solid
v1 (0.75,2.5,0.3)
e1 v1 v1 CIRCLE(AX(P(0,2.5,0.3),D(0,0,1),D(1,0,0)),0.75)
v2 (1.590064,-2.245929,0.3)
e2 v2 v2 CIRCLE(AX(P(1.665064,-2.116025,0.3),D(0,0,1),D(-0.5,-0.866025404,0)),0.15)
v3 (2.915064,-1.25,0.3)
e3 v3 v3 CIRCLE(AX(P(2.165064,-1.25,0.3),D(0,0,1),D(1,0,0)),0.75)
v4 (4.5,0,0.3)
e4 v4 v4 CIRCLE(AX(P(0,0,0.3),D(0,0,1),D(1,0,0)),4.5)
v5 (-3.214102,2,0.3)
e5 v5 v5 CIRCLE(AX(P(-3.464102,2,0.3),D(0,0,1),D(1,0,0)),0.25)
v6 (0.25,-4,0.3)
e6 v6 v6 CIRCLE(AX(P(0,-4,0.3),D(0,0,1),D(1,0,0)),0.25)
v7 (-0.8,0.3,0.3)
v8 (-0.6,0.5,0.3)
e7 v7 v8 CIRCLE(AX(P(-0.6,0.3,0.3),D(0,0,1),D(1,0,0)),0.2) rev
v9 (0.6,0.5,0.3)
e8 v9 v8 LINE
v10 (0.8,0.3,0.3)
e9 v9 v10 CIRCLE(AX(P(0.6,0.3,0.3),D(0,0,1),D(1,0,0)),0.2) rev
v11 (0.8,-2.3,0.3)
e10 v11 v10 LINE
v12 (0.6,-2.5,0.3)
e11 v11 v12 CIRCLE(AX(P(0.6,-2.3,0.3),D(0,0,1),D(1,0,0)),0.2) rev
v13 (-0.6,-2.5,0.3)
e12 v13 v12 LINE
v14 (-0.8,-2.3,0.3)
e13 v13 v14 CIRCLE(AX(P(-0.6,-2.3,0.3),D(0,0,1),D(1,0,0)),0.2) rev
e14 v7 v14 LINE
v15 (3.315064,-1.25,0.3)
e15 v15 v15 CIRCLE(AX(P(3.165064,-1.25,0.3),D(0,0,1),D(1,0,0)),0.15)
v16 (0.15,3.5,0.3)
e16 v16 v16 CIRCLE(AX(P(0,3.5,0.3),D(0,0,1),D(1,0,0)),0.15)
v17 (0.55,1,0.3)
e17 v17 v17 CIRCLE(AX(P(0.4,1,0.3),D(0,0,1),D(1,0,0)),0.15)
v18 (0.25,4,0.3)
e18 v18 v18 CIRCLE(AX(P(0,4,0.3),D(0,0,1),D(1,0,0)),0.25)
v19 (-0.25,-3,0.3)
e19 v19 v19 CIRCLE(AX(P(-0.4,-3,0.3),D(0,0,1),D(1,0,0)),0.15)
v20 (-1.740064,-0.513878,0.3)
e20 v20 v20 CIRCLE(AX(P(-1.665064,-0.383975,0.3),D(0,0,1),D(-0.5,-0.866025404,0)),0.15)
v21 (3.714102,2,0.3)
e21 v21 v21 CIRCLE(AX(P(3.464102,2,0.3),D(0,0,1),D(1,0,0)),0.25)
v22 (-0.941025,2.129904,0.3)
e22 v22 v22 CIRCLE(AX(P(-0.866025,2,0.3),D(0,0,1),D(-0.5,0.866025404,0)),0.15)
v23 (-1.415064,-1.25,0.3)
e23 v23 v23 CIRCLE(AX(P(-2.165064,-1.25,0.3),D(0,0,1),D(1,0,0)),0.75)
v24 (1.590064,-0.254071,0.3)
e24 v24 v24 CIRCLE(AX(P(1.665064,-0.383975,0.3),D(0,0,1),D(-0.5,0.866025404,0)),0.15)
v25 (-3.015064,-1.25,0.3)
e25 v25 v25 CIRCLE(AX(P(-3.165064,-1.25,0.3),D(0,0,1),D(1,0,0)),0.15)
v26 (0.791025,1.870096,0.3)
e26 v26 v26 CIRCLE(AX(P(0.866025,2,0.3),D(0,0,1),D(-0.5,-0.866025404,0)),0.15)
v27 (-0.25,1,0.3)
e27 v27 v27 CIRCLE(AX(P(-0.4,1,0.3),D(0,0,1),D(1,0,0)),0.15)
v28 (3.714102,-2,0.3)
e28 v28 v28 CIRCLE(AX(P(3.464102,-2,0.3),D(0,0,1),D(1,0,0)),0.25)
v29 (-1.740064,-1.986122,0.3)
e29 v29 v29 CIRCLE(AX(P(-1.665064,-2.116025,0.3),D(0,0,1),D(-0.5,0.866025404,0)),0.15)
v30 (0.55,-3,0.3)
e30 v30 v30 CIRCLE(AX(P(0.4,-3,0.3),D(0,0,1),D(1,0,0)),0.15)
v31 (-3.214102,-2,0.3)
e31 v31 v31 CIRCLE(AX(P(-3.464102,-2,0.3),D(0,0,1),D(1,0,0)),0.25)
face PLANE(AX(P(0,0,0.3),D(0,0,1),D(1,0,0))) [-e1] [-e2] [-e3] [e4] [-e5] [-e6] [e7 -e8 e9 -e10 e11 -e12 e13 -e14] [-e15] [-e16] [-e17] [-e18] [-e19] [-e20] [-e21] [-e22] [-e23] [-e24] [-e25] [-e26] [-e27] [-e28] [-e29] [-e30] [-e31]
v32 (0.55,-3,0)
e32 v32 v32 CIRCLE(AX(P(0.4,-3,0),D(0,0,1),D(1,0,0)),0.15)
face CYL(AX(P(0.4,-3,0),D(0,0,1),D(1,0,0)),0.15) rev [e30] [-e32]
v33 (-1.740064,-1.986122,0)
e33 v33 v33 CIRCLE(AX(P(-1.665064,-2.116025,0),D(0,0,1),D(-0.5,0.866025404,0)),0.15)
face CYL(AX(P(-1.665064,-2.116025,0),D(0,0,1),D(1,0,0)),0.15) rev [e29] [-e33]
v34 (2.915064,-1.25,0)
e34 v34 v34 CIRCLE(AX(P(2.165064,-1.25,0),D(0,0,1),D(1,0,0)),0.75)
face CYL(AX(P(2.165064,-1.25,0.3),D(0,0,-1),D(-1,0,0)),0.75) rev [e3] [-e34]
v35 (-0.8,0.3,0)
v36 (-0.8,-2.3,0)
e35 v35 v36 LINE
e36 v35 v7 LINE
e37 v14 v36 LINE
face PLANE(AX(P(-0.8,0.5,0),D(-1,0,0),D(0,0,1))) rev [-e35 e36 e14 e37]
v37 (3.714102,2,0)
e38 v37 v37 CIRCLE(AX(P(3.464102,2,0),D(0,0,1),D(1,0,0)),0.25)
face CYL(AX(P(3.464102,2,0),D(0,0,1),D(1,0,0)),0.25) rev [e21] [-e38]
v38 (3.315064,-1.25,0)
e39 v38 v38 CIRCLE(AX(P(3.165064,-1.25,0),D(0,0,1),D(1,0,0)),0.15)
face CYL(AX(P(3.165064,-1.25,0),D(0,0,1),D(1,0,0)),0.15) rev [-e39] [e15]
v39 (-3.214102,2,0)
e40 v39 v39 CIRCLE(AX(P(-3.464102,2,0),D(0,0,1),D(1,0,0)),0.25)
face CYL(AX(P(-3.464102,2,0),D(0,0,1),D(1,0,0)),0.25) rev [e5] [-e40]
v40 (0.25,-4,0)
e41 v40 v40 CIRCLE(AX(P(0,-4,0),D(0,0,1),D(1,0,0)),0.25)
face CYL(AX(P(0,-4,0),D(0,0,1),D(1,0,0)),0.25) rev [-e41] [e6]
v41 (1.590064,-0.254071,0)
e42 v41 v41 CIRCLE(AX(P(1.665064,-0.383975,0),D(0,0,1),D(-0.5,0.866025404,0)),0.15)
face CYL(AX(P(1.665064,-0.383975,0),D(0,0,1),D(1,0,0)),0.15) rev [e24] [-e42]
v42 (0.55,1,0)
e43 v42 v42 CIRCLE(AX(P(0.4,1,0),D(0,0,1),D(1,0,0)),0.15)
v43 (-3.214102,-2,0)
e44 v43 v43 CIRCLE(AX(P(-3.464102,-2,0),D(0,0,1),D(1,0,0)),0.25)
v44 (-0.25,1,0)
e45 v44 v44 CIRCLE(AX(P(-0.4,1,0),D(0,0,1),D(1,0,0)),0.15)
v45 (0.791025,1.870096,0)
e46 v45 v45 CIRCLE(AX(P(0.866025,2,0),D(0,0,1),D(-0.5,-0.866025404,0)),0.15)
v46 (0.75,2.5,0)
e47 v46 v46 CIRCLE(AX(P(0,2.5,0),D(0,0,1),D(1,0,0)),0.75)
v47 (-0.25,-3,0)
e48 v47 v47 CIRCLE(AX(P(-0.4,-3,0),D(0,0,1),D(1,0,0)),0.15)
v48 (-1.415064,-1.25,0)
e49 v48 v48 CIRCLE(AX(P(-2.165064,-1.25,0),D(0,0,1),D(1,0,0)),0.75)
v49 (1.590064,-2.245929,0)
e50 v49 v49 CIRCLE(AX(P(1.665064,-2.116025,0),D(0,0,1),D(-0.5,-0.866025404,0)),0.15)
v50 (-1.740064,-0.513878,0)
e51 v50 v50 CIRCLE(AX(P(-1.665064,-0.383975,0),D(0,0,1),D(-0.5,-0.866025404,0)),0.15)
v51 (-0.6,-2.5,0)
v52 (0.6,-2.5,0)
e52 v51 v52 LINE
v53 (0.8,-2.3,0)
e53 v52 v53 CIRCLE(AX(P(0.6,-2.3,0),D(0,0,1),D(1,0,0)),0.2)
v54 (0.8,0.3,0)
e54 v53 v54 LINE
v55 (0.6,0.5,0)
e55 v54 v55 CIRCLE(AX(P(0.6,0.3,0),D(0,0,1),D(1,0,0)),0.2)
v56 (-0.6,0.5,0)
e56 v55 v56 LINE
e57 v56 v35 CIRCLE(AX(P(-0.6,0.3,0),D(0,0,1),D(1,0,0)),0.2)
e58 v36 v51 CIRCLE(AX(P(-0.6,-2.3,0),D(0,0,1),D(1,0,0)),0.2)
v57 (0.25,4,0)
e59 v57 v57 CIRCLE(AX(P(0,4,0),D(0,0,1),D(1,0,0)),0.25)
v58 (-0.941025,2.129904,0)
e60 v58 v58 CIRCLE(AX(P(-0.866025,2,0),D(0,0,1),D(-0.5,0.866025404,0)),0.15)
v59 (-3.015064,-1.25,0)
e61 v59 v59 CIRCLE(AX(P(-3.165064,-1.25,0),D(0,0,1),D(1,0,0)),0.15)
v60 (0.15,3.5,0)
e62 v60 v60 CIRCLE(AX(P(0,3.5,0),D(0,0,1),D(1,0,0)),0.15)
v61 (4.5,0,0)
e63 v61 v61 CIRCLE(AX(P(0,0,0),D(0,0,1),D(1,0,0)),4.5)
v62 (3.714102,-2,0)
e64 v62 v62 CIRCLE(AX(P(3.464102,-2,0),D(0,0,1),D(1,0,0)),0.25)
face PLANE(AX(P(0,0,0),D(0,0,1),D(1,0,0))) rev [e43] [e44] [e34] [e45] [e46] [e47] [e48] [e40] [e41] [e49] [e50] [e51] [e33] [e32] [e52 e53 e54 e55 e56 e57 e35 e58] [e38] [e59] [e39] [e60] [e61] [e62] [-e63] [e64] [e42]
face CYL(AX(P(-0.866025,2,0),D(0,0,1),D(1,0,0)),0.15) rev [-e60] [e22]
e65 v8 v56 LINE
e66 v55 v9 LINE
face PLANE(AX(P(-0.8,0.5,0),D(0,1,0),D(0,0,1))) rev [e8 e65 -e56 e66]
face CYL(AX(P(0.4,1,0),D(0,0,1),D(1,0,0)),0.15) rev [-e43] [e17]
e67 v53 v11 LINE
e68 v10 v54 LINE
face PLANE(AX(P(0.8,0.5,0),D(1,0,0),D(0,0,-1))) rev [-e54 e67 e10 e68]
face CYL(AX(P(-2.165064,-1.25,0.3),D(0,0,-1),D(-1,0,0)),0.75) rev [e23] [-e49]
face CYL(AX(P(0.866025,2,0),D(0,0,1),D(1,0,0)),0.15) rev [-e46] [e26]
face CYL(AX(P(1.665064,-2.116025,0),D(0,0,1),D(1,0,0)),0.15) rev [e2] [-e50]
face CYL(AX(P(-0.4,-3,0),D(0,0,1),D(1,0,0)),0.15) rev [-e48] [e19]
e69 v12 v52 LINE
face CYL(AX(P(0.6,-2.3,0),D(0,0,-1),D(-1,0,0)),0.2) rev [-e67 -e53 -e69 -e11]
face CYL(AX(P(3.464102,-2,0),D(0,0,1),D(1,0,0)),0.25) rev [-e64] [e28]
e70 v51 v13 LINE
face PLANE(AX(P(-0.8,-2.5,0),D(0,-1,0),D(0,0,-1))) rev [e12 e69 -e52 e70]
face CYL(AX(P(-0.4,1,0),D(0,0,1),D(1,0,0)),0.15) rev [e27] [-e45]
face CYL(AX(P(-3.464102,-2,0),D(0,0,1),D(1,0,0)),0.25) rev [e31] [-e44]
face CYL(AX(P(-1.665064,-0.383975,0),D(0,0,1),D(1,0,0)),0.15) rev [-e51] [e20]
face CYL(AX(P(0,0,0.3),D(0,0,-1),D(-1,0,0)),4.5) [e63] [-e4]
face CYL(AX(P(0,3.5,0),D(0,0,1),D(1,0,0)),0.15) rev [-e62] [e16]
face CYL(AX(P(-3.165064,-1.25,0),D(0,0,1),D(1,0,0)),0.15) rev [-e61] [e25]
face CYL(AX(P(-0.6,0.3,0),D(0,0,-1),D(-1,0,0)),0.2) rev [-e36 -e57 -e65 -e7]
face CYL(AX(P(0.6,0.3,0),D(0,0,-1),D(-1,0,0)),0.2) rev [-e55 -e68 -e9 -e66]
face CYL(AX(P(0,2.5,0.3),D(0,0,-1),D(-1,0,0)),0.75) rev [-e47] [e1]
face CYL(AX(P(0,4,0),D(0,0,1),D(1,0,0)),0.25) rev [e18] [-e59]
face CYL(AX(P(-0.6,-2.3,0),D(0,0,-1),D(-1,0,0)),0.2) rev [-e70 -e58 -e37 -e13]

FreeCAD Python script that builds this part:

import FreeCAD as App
import Part
import Sketcher
Q = App.Units.Quantity


def edges_at(feature, points):
    """Names of the edges that pass closest to the given points."""
    edges = feature.Shape.Edges
    near = lambda p: min(range(len(edges)), key=lambda i: edges[i].distToShape(Part.Vertex(*p))[0])
    return sorted({f"Edge{near(p) + 1}" for p in points})


def add_polygon(sketch, points):
    """Adds a closed chain of lines whose ends are joined by coincident constraints."""
    first, n = sketch.GeometryCount, len(points)
    for a, b in zip(points, points[1:] + points[:1]):
        sketch.addGeometry(Part.LineSegment(App.Vector(*a, 0), App.Vector(*b, 0)), False)
    for i in range(n):
        sketch.addConstraint(Sketcher.Constraint("Coincident", first + i, 2, first + (i + 1) % n, 1))

doc = App.newDocument("Part")
body = doc.addObject("PartDesign::Body", "Body")

# Sketch on XY plane
sketch1 = body.newObject("Sketcher::SketchObject", "Sketch")
sketch1.AttachmentSupport = (doc.getObject("XY_Plane"), [""])
sketch1.MapMode = "FlatFace"
sketch1.addGeometry([
    Part.Circle(App.Vector(0, 0, 0), App.Vector(0, 0, 1), 4.5),
    Part.Circle(App.Vector(-2.2, -1.2, 0), App.Vector(0, 0, 1), 0.8),
    Part.Circle(App.Vector(2.2, -1.2, 0), App.Vector(0, 0, 1), 0.8),
    Part.Circle(App.Vector(0, 2.5, 0), App.Vector(0, 0, 1), 0.8),
], False)
sketch1.addConstraint([
    Sketcher.Constraint("Coincident", 0, 3, -1, 1),
    Sketcher.Constraint("Equal", 1, 2),
    Sketcher.Constraint("Equal", 2, 3),
    Sketcher.Constraint("Symmetric", 1, 3, 2, 3, -2),
    Sketcher.Constraint("PointOnObject", 3, 3, -2),
    Sketcher.Constraint("Diameter", 0, Q("9 mm")),
    Sketcher.Constraint("Diameter", 1, Q("1.5 mm")),
    Sketcher.Constraint("DistanceY", -1, 1, 3, 3, Q("2.5 mm")),
    Sketcher.Constraint("DistanceY", 1, 3, -1, 1, Q("1.25 mm")),
    Sketcher.Constraint("DistanceX", 1, 3, -1, 1, Q("2.165064 mm")),
])
pad1 = body.newObject("PartDesign::Pad", "Pad")
pad1.Profile = sketch1
pad1.Length = 0.3

# Sketch on XY plane
sketch2 = body.newObject("Sketcher::SketchObject", "Sketch001")
sketch2.AttachmentSupport = (doc.getObject("XY_Plane"), [""])
sketch2.MapMode = "FlatFace"
sketch2.AttachmentOffset = App.Placement(App.Vector(0, 0, 0.3), App.Rotation())
sketch2.addGeometry([
    Part.Circle(App.Vector(0, -4, 0), App.Vector(0, 0, 1), 0.25),  # 0
    Part.Circle(App.Vector(-3.46, -2, 0), App.Vector(0, 0, 1), 0.25),  # 1
    Part.Circle(App.Vector(-3.46, 2, 0), App.Vector(0, 0, 1), 0.25),  # 2
    Part.Circle(App.Vector(0, 4, 0), App.Vector(0, 0, 1), 0.25),  # 3
    Part.Circle(App.Vector(3.46, 2, 0), App.Vector(0, 0, 1), 0.25),  # 4
    Part.Circle(App.Vector(3.46, -2, 0), App.Vector(0, 0, 1), 0.25),  # 5
], False)
sketch2.addConstraint([
    Sketcher.Constraint("Equal", 0, 1),
    Sketcher.Constraint("Equal", 1, 2),
    Sketcher.Constraint("Equal", 2, 3),
    Sketcher.Constraint("Equal", 3, 4),
    Sketcher.Constraint("Equal", 4, 5),
    Sketcher.Constraint("Symmetric", 0, 3, 3, 3, -1, 1),
    Sketcher.Constraint("Symmetric", 1, 3, 4, 3, -1, 1),
    Sketcher.Constraint("Symmetric", 2, 3, 5, 3, -1, 1),
    Sketcher.Constraint("Symmetric", 2, 3, 4, 3, -2),
    Sketcher.Constraint("PointOnObject", 0, 3, -2),
    Sketcher.Constraint("Diameter", 0, Q("0.5 mm")),
    Sketcher.Constraint("DistanceY", 0, 3, -1, 1, Q("4 mm")),
    Sketcher.Constraint("DistanceY", 1, 3, -1, 1, Q("2 mm")),
    Sketcher.Constraint("DistanceX", 1, 3, -1, 1, Q("3.464102 mm")),
])
pocket1 = body.newObject("PartDesign::Pocket", "Pocket")
pocket1.Profile = sketch2
pocket1.Length = 0.3

# Sketch on XY plane
sketch3 = body.newObject("Sketcher::SketchObject", "Sketch002")
sketch3.AttachmentSupport = (doc.getObject("XY_Plane"), [""])
sketch3.MapMode = "FlatFace"
sketch3.AttachmentOffset = App.Placement(App.Vector(0, 0, 0.3), App.Rotation())
add_polygon(sketch3, [(-0.8, 0.5), (-0.8, -2.5), (0.8, -2.5), (0.8, 0.5)])  # lines 0-3
sketch3.addConstraint([
    Sketcher.Constraint("Vertical", 0),
    Sketcher.Constraint("Horizontal", 1),
    Sketcher.Constraint("Vertical", 2),
    Sketcher.Constraint("Horizontal", 3),
    Sketcher.Constraint("DistanceY", 0, 2, 0, 1, Q("3 mm")),
    Sketcher.Constraint("DistanceX", 1, 1, 1, 2, Q("1.6 mm")),
    Sketcher.Constraint("DistanceX", 0, 2, -1, 1, Q("0.8 mm")),
    Sketcher.Constraint("DistanceY", 0, 2, -1, 1, Q("2.5 mm")),
])
pocket2 = body.newObject("PartDesign::Pocket", "Pocket001")
pocket2.Profile = sketch3
pocket2.Length = 0.3
doc.recompute()

fillet = body.newObject("PartDesign::Fillet", "Fillet")
fillet.Base = (pocket2, edges_at(pocket2, [
    (-0.8, 0.5, 0.15),
    (0.8, 0.5, 0.15),
    (0.8, -2.5, 0.15),
    (-0.8, -2.5, 0.15),
]))
fillet.Radius = 0.2

# Sketch on XY plane
sketch4 = body.newObject("Sketcher::SketchObject", "Sketch003")
sketch4.AttachmentSupport = (doc.getObject("XY_Plane"), [""])
sketch4.MapMode = "FlatFace"
sketch4.AttachmentOffset = App.Placement(App.Vector(0, 0, 0.3), App.Rotation())
sketch4.addGeometry(Part.Circle(App.Vector(0, 3.5, 0), App.Vector(0, 0, 1), 0.15), False)
sketch4.addConstraint([
    Sketcher.Constraint("PointOnObject", 0, 3, -2),
    Sketcher.Constraint("Diameter", 0, Q("0.3 mm")),
    Sketcher.Constraint("DistanceY", -1, 1, 0, 3, Q("3.5 mm")),
])
pocket3 = body.newObject("PartDesign::Pocket", "Pocket002")
pocket3.Profile = sketch4
pocket3.Length = 0.3
doc.recompute()

datumline = body.newObject("PartDesign::Line", "DatumLine")
datumline.Placement = App.Placement(App.Vector(0, 2.5, 0), App.Rotation(App.Vector(0, 0, 1), App.Vector(0, 0, 1)))
polarpattern = body.newObject("PartDesign::PolarPattern", "PolarPattern")
polarpattern.Originals = [pocket3]
polarpattern.Axis = (datumline, [""])
polarpattern.Angle = 360
polarpattern.Occurrences = 3
body.Tip = polarpattern

# Sketch on XY plane
sketch5 = body.newObject("Sketcher::SketchObject", "Sketch004")
sketch5.AttachmentSupport = (doc.getObject("XY_Plane"), [""])
sketch5.MapMode = "FlatFace"
sketch5.AttachmentOffset = App.Placement(App.Vector(0, 0, 0.3), App.Rotation())
sketch5.addGeometry(Part.Circle(App.Vector(3.17, -1.25, 0), App.Vector(0, 0, 1), 0.15), False)
sketch5.addConstraint([
    Sketcher.Constraint("Diameter", 0, Q("0.3 mm")),
    Sketcher.Constraint("DistanceY", 0, 3, -1, 1, Q("1.25 mm")),
    Sketcher.Constraint("DistanceX", -1, 1, 0, 3, Q("3.165064 mm")),
])
pocket4 = body.newObject("PartDesign::Pocket", "Pocket003")
pocket4.Profile = sketch5
pocket4.Length = 0.3
doc.recompute()

datumline2 = body.newObject("PartDesign::Line", "DatumLine001")
datumline2.Placement = App.Placement(App.Vector(2.165064, -1.25, 0), App.Rotation(App.Vector(0, 0, 1), App.Vector(0, 0, 1)))
polarpattern2 = body.newObject("PartDesign::PolarPattern", "PolarPattern001")
polarpattern2.Originals = [pocket4]
polarpattern2.Axis = (datumline2, [""])
polarpattern2.Angle = 360
polarpattern2.Occurrences = 3
body.Tip = polarpattern2

# Sketch on XY plane
sketch6 = body.newObject("Sketcher::SketchObject", "Sketch005")
sketch6.AttachmentSupport = (doc.getObject("XY_Plane"), [""])
sketch6.MapMode = "FlatFace"
sketch6.AttachmentOffset = App.Placement(App.Vector(0, 0, 0.3), App.Rotation())
sketch6.addGeometry(Part.Circle(App.Vector(-3.17, -1.25, 0), App.Vector(0, 0, 1), 0.15), False)
sketch6.addConstraint([
    Sketcher.Constraint("Diameter", 0, Q("0.3 mm")),
    Sketcher.Constraint("DistanceY", 0, 3, -1, 1, Q("1.25 mm")),
    Sketcher.Constraint("DistanceX", 0, 3, -1, 1, Q("3.165064 mm")),
])
pocket5 = body.newObject("PartDesign::Pocket", "Pocket004")
pocket5.Profile = sketch6
pocket5.Length = 0.3
doc.recompute()

datumline3 = body.newObject("PartDesign::Line", "DatumLine002")
datumline3.Placement = App.Placement(App.Vector(-2.165064, -1.25, 0), App.Rotation(App.Vector(0, 0, 1), App.Vector(0, 0, 1)))
polarpattern3 = body.newObject("PartDesign::PolarPattern", "PolarPattern002")
polarpattern3.Originals = [pocket5]
polarpattern3.Axis = (datumline3, [""])
polarpattern3.Angle = 360
polarpattern3.Occurrences = 3
body.Tip = polarpattern3

# Sketch on XY plane
sketch7 = body.newObject("Sketcher::SketchObject", "Sketch006")
sketch7.AttachmentSupport = (doc.getObject("XY_Plane"), [""])
sketch7.MapMode = "FlatFace"
sketch7.AttachmentOffset = App.Placement(App.Vector(0, 0, 0.3), App.Rotation())
sketch7.addGeometry([
    Part.Circle(App.Vector(0.4, -3, 0), App.Vector(0, 0, 1), 0.15),
    Part.Circle(App.Vector(-0.4, -3, 0), App.Vector(0, 0, 1), 0.15),
    Part.Circle(App.Vector(0.4, 1, 0), App.Vector(0, 0, 1), 0.15),
    Part.Circle(App.Vector(-0.4, 1, 0), App.Vector(0, 0, 1), 0.15),
], False)
sketch7.addConstraint([
    Sketcher.Constraint("Equal", 0, 1),
    Sketcher.Constraint("Equal", 1, 2),
    Sketcher.Constraint("Equal", 2, 3),
    Sketcher.Constraint("Symmetric", 0, 3, 1, 3, -2),
    Sketcher.Constraint("Symmetric", 2, 3, 3, 3, -2),
    Sketcher.Constraint("Vertical", 0, 3, 2, 3),
    Sketcher.Constraint("Diameter", 0, Q("0.3 mm")),
    Sketcher.Constraint("DistanceY", 0, 3, -1, 1, Q("3 mm")),
    Sketcher.Constraint("DistanceY", -1, 1, 2, 3, Q("1 mm")),
    Sketcher.Constraint("DistanceX", -1, 1, 0, 3, Q("0.4 mm")),
])
pocket6 = body.newObject("PartDesign::Pocket", "Pocket005")
pocket6.Profile = sketch7
pocket6.Length = 0.3

doc.recompute()
